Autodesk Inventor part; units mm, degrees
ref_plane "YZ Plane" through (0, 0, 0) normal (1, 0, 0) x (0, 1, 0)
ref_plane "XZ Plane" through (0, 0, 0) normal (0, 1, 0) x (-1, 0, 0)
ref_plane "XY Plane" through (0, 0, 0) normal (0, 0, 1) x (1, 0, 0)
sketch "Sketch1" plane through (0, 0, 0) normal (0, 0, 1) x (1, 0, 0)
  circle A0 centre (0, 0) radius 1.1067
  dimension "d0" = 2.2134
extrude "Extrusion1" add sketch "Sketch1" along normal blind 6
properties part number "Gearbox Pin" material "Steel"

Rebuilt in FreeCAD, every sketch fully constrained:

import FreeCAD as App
import Part
import Sketcher

V = App.Vector

doc = App.newDocument("Part")
body = doc.addObject("PartDesign::Body", "Body")

# Sketch on XY plane
sketch1 = body.newObject("Sketcher::SketchObject", "Sketch")
sketch1.AttachmentSupport = (doc.getObject("XY_Plane"), [""])
sketch1.MapMode = "FlatFace"
sketch1.addGeometry(Part.Circle(V(0, 0, 0), V(0, 0, 1), 1.1067), False)
sketch1.addConstraint([
    Sketcher.Constraint("Coincident", 0, 3, -1, 1),
    Sketcher.Constraint("Diameter", 0, 2.2134),
])
pad1 = body.newObject("PartDesign::Pad", "Pad")
pad1.Profile = sketch1
pad1.Length = 6

doc.recompute()
